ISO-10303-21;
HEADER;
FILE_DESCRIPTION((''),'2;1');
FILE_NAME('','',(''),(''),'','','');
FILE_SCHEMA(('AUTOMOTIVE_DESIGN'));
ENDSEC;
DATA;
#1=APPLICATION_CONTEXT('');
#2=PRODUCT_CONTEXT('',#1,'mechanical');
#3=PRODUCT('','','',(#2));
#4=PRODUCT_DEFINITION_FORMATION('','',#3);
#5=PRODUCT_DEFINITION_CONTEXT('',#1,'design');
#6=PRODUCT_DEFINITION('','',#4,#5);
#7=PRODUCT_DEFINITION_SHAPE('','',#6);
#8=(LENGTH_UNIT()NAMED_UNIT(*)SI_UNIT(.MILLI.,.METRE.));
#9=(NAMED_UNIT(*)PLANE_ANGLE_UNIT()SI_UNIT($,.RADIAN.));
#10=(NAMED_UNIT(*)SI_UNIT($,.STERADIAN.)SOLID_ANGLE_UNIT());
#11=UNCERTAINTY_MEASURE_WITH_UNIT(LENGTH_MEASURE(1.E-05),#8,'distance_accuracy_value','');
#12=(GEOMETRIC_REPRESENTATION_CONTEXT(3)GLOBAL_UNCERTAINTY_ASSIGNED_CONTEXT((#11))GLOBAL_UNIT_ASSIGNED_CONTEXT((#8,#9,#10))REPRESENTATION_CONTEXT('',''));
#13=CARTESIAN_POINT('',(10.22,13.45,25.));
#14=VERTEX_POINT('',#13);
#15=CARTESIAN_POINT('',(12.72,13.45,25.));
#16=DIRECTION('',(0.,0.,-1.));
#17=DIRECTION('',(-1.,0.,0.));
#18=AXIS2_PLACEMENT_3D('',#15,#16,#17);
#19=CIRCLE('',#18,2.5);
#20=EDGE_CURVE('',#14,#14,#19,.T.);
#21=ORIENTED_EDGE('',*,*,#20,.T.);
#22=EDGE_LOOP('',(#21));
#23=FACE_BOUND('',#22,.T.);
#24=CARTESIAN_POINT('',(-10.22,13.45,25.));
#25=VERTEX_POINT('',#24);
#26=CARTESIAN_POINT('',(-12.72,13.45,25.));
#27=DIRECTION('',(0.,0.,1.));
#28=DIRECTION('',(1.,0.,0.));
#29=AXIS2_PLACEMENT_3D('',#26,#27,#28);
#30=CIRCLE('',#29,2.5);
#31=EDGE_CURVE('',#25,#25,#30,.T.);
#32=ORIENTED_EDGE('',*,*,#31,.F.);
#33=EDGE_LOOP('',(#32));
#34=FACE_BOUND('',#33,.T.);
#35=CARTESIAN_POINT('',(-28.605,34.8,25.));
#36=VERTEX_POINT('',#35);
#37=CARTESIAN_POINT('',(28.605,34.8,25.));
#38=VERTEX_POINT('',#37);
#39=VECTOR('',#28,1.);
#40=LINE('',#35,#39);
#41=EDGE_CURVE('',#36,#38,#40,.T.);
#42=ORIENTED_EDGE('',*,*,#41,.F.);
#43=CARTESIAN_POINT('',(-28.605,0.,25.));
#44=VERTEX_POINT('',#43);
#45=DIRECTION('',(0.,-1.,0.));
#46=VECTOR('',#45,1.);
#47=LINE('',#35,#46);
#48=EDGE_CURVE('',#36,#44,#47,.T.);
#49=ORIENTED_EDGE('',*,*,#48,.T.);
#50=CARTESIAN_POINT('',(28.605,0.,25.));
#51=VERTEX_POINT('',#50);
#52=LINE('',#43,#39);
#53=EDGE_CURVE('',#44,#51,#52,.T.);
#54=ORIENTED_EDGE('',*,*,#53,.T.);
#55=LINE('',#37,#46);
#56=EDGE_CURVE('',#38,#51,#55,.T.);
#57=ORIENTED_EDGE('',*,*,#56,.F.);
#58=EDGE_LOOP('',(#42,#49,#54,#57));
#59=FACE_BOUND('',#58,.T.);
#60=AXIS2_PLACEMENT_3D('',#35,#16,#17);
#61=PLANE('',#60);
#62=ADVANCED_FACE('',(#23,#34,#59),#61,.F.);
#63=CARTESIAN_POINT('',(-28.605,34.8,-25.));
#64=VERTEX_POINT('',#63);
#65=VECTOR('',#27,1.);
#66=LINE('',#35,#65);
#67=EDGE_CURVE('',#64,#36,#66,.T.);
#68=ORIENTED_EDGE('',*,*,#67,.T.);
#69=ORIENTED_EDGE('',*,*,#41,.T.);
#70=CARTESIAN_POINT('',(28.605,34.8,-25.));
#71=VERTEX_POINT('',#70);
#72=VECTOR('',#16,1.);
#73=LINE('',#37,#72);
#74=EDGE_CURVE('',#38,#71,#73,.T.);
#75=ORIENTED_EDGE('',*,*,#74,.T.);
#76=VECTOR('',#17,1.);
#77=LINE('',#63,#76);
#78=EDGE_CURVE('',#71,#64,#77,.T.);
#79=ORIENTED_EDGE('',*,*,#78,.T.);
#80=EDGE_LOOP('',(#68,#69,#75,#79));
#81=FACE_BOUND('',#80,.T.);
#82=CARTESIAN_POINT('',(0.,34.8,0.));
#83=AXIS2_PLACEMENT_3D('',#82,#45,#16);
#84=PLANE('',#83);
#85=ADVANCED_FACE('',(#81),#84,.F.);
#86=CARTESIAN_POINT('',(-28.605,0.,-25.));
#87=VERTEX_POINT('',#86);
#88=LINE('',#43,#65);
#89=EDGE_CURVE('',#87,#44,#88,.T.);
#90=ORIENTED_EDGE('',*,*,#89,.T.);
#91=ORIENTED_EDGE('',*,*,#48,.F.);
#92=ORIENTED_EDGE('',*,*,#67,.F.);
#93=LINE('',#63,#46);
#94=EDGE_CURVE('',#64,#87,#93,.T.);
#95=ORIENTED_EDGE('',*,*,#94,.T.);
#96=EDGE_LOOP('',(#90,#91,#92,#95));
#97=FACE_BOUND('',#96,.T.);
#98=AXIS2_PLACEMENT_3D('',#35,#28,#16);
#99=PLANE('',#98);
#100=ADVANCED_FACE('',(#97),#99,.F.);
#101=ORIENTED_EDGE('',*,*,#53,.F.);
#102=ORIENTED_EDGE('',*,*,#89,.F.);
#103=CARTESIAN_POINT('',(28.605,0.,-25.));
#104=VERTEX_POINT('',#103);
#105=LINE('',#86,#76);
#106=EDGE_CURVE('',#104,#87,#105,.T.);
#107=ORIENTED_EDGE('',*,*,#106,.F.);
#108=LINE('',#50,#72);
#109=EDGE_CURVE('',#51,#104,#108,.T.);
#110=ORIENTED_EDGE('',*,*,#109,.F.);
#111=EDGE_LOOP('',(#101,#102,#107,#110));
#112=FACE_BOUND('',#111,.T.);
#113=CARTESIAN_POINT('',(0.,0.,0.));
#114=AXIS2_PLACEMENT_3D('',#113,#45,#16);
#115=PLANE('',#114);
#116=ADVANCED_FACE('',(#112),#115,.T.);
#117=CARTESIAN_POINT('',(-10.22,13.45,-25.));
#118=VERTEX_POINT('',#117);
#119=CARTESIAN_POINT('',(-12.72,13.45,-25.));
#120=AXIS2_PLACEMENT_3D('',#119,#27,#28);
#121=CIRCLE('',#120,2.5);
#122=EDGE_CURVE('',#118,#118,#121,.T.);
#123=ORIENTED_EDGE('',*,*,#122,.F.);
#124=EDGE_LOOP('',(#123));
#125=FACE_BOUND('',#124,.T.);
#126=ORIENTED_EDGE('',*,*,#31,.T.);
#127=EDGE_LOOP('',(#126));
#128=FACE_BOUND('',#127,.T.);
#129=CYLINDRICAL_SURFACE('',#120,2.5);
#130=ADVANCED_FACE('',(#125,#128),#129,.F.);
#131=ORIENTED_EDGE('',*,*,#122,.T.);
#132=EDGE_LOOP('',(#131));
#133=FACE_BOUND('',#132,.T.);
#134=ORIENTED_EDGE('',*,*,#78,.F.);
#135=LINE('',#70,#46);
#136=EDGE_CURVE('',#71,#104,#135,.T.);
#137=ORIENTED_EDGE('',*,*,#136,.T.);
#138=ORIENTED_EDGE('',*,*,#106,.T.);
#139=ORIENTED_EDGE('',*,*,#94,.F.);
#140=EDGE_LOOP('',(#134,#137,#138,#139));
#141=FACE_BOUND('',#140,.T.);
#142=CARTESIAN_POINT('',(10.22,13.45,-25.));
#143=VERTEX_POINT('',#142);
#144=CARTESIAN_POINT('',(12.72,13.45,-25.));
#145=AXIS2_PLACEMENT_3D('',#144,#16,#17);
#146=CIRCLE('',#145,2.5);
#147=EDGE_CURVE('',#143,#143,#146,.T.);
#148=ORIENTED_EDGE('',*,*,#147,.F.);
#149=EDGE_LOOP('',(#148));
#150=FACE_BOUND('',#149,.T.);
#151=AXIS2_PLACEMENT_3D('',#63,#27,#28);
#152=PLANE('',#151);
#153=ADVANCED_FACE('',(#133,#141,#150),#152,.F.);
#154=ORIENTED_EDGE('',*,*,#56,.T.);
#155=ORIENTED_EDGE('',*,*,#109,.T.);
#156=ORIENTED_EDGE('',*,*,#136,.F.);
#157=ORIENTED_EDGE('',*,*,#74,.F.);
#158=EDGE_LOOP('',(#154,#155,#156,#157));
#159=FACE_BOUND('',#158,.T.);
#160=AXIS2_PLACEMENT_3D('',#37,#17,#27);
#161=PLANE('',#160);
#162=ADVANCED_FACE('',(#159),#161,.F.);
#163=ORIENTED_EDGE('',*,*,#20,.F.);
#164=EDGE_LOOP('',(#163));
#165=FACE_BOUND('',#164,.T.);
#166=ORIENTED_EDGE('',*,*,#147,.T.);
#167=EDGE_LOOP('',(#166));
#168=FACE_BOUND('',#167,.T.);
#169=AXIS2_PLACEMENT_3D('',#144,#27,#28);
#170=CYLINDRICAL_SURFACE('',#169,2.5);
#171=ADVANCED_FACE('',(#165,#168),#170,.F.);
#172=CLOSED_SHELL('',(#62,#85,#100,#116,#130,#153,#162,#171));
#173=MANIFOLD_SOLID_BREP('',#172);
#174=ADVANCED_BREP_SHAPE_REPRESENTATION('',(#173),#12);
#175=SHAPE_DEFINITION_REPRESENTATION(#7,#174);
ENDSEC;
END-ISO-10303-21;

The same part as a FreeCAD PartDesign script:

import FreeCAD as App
import Part
import Sketcher
Q = App.Units.Quantity


def add_polygon(sketch, points):
    """Adds a closed chain of lines whose ends are joined by coincident constraints."""
    first, n = sketch.GeometryCount, len(points)
    for a, b in zip(points, points[1:] + points[:1]):
        sketch.addGeometry(Part.LineSegment(App.Vector(*a, 0), App.Vector(*b, 0)), False)
    for i in range(n):
        sketch.addConstraint(Sketcher.Constraint("Coincident", first + i, 2, first + (i + 1) % n, 1))

doc = App.newDocument("Part")
body = doc.addObject("PartDesign::Body", "Body")

# Sketch on XZ plane
sketch1 = body.newObject("Sketcher::SketchObject", "Sketch")
sketch1.AttachmentSupport = (doc.getObject("XZ_Plane"), [""])
sketch1.MapMode = "FlatFace"
add_polygon(sketch1, [(-29, -25), (-29, 25), (29, 25), (29, -25)])  # lines 0-3
sketch1.addConstraint(Sketcher.Constraint("Vertical", 0))
sketch1.addConstraint(Sketcher.Constraint("Horizontal", 1))
sketch1.addConstraint(Sketcher.Constraint("Vertical", 2))
sketch1.addConstraint(Sketcher.Constraint("Horizontal", 3))
sketch1.addConstraint(Sketcher.Constraint("Symmetric", 0, 2, 2, 2, -1, 1))
sketch1.addConstraint(Sketcher.Constraint("DistanceY", 0, 1, 0, 2, Q("50 mm")))
sketch1.addConstraint(Sketcher.Constraint("DistanceX", 1, 1, 1, 2, Q("57.21 mm")))
pad1 = body.newObject("PartDesign::Pad", "Pad")
pad1.Profile = sketch1
pad1.Length = 34.8
pad1.Reversed = True

# Sketch on XY plane
sketch2 = body.newObject("Sketcher::SketchObject", "Sketch001")
sketch2.AttachmentSupport = (doc.getObject("XY_Plane"), [""])
sketch2.MapMode = "FlatFace"
sketch2.AttachmentOffset = App.Placement(App.Vector(0, 0, 25), App.Rotation())
sketch2.addGeometry(Part.Circle(App.Vector(-12.7, 13.4, 0), App.Vector(0, 0, 1), 2.5), False)
sketch2.addConstraint(Sketcher.Constraint("Diameter", 0, Q("5 mm")))
sketch2.addConstraint(Sketcher.Constraint("DistanceX", 0, 3, -1, 1, Q("12.72 mm")))
sketch2.addConstraint(Sketcher.Constraint("DistanceY", -1, 1, 0, 3, Q("13.45 mm")))
pocket1 = body.newObject("PartDesign::Pocket", "Pocket")
pocket1.Profile = sketch2
pocket1.Type = "ThroughAll"
doc.recompute()

mirrored = body.newObject("PartDesign::Mirrored", "Mirrored")
mirrored.Originals = [pocket1]
mirrored.MirrorPlane = (doc.getObject("YZ_Plane"), [""])
body.Tip = mirrored

doc.recompute()
